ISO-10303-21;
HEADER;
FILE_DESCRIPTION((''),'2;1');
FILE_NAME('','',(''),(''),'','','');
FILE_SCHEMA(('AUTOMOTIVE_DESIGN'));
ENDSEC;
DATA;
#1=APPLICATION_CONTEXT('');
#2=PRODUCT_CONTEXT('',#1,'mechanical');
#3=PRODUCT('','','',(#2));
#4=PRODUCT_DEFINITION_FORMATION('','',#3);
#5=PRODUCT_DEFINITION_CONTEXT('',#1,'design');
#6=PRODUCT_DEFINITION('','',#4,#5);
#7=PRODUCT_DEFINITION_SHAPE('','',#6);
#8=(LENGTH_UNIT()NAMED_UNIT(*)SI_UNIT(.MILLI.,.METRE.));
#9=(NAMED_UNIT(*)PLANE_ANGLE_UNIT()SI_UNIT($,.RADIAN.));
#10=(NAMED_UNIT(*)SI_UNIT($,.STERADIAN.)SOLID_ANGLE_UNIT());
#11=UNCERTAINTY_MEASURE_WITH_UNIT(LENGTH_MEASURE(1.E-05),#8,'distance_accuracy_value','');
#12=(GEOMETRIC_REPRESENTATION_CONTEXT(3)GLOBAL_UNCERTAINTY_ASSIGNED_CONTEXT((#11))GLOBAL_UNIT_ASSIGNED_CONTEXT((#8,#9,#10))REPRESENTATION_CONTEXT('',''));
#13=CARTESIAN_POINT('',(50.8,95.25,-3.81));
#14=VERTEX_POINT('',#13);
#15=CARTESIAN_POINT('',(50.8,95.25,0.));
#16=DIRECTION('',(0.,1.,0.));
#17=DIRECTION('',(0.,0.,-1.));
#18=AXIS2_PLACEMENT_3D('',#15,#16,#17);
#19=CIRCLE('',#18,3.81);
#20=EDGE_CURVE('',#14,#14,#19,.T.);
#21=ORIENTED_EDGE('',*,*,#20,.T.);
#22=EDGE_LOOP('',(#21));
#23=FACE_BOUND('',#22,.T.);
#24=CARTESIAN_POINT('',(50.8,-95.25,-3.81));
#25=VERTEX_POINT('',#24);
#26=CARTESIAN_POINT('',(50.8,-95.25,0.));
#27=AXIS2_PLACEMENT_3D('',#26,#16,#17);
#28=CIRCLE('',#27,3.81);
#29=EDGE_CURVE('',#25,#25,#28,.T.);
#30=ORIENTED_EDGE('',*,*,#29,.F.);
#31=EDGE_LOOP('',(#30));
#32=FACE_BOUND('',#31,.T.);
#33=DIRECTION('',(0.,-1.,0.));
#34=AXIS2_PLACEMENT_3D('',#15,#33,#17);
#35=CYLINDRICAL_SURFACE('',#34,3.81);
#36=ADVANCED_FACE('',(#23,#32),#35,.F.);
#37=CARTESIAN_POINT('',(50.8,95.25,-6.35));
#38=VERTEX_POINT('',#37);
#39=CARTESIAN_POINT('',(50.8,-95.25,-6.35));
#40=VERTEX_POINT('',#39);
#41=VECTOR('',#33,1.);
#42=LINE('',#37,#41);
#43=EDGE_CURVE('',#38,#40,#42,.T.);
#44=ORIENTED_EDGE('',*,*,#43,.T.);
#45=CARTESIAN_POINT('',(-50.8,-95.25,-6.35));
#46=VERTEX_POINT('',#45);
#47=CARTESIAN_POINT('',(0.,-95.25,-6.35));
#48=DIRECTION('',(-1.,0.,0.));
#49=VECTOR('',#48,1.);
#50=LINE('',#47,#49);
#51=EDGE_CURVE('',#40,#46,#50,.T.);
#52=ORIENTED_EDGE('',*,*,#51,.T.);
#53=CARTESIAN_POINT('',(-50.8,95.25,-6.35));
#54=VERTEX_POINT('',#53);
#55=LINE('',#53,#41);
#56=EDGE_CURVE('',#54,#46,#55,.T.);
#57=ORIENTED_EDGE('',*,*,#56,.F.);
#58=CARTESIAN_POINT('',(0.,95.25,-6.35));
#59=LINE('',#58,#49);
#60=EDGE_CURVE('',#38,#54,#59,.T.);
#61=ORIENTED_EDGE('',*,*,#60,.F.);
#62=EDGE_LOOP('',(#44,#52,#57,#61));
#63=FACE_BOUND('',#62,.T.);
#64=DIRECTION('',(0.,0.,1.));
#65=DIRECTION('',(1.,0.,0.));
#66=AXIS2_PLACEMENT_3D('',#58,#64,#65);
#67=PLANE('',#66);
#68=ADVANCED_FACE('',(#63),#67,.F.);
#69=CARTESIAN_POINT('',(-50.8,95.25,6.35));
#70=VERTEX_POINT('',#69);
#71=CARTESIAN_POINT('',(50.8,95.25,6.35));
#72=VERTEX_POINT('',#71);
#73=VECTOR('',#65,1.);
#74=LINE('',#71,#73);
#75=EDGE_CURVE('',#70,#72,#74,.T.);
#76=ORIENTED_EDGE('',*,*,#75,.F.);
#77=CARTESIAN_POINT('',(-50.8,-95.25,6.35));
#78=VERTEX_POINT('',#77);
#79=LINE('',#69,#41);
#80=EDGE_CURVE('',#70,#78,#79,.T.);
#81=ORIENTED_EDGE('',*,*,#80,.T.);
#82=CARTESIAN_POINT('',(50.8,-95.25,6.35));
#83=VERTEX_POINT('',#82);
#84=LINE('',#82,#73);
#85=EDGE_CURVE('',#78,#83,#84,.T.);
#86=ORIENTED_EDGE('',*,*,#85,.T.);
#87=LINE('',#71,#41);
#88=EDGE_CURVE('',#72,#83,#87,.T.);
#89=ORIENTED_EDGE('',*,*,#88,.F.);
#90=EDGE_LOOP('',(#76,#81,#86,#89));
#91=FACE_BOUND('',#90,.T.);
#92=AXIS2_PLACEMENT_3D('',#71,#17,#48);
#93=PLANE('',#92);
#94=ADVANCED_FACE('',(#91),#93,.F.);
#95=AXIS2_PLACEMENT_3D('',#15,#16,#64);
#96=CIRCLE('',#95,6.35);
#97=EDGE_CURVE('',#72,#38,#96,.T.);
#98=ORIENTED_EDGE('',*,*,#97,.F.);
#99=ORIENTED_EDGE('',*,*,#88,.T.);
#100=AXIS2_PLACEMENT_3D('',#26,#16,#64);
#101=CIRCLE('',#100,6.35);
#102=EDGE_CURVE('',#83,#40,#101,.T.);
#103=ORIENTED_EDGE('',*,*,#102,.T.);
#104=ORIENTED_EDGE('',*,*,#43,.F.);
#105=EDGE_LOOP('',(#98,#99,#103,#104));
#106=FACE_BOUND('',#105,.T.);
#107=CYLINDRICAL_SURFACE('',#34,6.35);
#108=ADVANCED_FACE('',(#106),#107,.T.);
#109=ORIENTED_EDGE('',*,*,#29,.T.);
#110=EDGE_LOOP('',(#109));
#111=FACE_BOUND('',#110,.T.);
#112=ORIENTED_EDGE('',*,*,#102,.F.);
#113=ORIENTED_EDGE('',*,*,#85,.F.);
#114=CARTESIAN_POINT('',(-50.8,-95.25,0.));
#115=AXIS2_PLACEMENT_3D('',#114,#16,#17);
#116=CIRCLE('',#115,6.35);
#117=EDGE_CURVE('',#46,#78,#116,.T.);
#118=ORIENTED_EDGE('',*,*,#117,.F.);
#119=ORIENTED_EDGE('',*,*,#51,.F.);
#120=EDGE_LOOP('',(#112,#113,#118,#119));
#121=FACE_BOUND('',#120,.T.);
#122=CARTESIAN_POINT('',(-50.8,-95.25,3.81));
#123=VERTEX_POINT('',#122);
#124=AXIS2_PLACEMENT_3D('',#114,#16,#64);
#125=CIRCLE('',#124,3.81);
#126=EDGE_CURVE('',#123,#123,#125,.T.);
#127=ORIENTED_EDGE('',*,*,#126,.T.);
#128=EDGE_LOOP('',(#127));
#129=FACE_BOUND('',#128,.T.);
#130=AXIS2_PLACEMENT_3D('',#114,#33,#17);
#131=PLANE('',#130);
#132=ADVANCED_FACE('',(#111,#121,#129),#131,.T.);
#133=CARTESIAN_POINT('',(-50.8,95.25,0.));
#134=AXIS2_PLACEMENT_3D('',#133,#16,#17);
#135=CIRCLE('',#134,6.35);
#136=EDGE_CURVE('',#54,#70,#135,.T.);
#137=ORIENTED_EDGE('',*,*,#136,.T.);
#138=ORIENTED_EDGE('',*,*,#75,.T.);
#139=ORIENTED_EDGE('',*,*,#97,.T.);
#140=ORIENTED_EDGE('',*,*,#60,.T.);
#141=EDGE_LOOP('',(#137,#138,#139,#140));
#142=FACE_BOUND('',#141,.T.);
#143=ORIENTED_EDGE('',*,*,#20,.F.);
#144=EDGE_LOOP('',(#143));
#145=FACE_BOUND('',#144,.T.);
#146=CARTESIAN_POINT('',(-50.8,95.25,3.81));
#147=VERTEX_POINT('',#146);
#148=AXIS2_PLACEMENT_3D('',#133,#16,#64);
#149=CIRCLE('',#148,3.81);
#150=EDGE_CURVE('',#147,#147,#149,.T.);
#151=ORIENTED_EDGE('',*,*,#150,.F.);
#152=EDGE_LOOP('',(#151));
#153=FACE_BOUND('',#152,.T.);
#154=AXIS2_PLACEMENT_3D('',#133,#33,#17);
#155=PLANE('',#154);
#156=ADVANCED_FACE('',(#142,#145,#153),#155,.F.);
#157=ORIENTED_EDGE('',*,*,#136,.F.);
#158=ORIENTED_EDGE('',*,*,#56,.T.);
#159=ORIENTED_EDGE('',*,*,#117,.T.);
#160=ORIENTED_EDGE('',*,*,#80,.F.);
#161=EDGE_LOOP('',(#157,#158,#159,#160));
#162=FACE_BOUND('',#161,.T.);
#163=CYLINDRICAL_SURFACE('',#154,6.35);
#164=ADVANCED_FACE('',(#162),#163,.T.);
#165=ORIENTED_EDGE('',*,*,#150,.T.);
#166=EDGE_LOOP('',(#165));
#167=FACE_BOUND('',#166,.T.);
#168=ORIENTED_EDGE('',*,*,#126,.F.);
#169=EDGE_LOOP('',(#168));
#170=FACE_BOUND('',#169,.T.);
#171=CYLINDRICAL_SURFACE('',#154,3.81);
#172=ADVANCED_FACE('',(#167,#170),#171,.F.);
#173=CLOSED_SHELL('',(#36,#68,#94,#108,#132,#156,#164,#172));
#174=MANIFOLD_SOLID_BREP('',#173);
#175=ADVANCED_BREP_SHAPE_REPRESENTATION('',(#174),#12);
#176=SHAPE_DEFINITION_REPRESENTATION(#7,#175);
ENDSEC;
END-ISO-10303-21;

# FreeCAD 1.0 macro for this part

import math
import FreeCAD as App
import Part
import Sketcher
Q = App.Units.Quantity

doc = App.newDocument("Part")
body = doc.addObject("PartDesign::Body", "Body")

sketch1 = body.newObject("Sketcher::SketchObject", "Sketch")
sketch1.AttachmentSupport = (doc.getObject("XZ_Plane"), [""])
sketch1.MapMode = "FlatFace"
sketch1.addGeometry([
    Part.ArcOfCircle(Part.Circle(App.Vector(50.8, 0, 0), App.Vector(0, 0, 1), 6.3), math.radians(-90), math.radians(90)),
    Part.LineSegment(App.Vector(50.8, -6.3, 0), App.Vector(-50.8, -6.3, 0)),
    Part.ArcOfCircle(Part.Circle(App.Vector(-50.8, 0, 0), App.Vector(0, 0, 1), 6.3), math.radians(90), math.radians(270)),
    Part.LineSegment(App.Vector(-50.8, 6.3, 0), App.Vector(50.8, 6.3, 0)),
    Part.Circle(App.Vector(50.8, 0, 0), App.Vector(0, 0, 1), 3.8),
    Part.Circle(App.Vector(-50.8, 0, 0), App.Vector(0, 0, 1), 3.8),
], False)
sketch1.addConstraint([
    Sketcher.Constraint("Tangent", 0, 1, 1, 1),
    Sketcher.Constraint("Tangent", 1, 2, 2, 2),
    Sketcher.Constraint("Tangent", 2, 1, 3, 1),
    Sketcher.Constraint("Tangent", 3, 2, 0, 2),
    Sketcher.Constraint("Horizontal", 1),
    Sketcher.Constraint("Horizontal", 3),
    Sketcher.Constraint("Coincident", 4, 3, 0, 3),
    Sketcher.Constraint("Coincident", 5, 3, 2, 3),
    Sketcher.Constraint("Equal", 4, 5),
    Sketcher.Constraint("Symmetric", 0, 3, 2, 3, -1, 1),
    Sketcher.Constraint("Diameter", 4, Q("0.3 in")),
    Sketcher.Constraint("DistanceX", 1, 2, 1, 1, Q("4 in")),
    Sketcher.Constraint("Radius", 0, Q("0.25 in")),
])
pad1 = body.newObject("PartDesign::Pad", "Pad")
pad1.Profile = sketch1
pad1.Length = Q("7.5 in")
pad1.Midplane = True

doc.recompute()
